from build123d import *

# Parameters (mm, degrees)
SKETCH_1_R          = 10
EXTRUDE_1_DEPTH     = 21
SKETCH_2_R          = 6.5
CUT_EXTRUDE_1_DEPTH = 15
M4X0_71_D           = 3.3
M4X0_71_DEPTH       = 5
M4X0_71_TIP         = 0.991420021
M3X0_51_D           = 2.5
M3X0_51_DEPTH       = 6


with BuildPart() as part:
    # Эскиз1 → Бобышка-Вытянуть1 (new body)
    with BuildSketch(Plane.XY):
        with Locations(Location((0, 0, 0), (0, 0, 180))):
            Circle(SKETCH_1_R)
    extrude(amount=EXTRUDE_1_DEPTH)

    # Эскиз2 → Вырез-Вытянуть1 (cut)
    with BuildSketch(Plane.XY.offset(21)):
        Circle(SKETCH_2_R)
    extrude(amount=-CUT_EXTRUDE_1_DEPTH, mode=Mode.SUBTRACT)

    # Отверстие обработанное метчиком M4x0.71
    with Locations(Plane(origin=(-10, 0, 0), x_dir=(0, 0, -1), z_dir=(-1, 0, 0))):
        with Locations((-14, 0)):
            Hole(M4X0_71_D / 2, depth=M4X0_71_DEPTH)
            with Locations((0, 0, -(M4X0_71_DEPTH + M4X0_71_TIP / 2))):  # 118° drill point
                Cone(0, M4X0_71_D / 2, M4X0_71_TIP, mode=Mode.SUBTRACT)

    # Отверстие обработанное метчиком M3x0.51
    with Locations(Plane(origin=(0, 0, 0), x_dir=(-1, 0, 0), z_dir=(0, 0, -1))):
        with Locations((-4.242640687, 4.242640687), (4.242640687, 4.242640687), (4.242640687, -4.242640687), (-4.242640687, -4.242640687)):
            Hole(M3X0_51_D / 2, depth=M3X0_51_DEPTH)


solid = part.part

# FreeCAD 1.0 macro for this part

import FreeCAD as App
import Part
import Sketcher

doc = App.newDocument("Part")
body = doc.addObject("PartDesign::Body", "Body")

# Sketch on XY plane
sketch1 = body.newObject("Sketcher::SketchObject", "Sketch")
sketch1.AttachmentSupport = (doc.getObject("XY_Plane"), [""])
sketch1.MapMode = "FlatFace"
sketch1.addGeometry(Part.Circle(App.Vector(0, 0, 0), App.Vector(0, 0, 1), 10), False)
sketch1.addConstraint(Sketcher.Constraint("Coincident", 0, 3, -1, 1))
sketch1.addConstraint(Sketcher.Constraint("Diameter", 0, 20.0))
pad1 = body.newObject("PartDesign::Pad", "Pad")
pad1.Profile = sketch1
pad1.Length = 21

# Sketch on XY plane
sketch2 = body.newObject("Sketcher::SketchObject", "Sketch001")
sketch2.AttachmentSupport = (doc.getObject("XY_Plane"), [""])
sketch2.MapMode = "FlatFace"
sketch2.AttachmentOffset = App.Placement(App.Vector(0, 0, 21), App.Rotation())
sketch2.addGeometry(Part.Circle(App.Vector(0, 0, 0), App.Vector(0, 0, 1), 6.5), False)
sketch2.addConstraint(Sketcher.Constraint("Coincident", 0, 3, -1, 1))
sketch2.addConstraint(Sketcher.Constraint("Diameter", 0, 13.0))
pocket1 = body.newObject("PartDesign::Pocket", "Pocket")
pocket1.Profile = sketch2
pocket1.Length = 15

# Sketch on YZ plane
sketch3 = body.newObject("Sketcher::SketchObject", "Sketch002")
sketch3.AttachmentSupport = (doc.getObject("YZ_Plane"), [""])
sketch3.MapMode = "FlatFace"
sketch3.AttachmentOffset = App.Placement(App.Vector(0, 0, -10), App.Rotation())
sketch3.addGeometry(Part.Circle(App.Vector(0, 14, 0), App.Vector(0, 0, 1), 1.65), False)
sketch3.addConstraint(Sketcher.Constraint("PointOnObject", 0, 3, -2))
sketch3.addConstraint(Sketcher.Constraint("Diameter", 0, 3.3))
sketch3.addConstraint(Sketcher.Constraint("DistanceY", -1, 1, 0, 3, 14.0))
doc.recompute()
hole = body.newObject("PartDesign::Hole", "Hole")
hole.Profile = sketch3
hole.ThreadType = "None"
hole.Diameter = 3.3
hole.DepthType = "Dimension"
hole.Depth = 5
hole.DrillPoint = "Angled"
hole.DrillPointAngle = 118
hole.Reversed = True

# Sketch on XY plane
sketch4 = body.newObject("Sketcher::SketchObject", "Sketch003")
sketch4.AttachmentSupport = (doc.getObject("XY_Plane"), [""])
sketch4.MapMode = "FlatFace"
sketch4.addGeometry(Part.Circle(App.Vector(4.242641, 4.242641, 0), App.Vector(0, 0, 1), 1.25), False)
sketch4.addGeometry(Part.Circle(App.Vector(-4.242641, 4.242641, 0), App.Vector(0, 0, 1), 1.25), False)
sketch4.addGeometry(Part.Circle(App.Vector(-4.242641, -4.242641, 0), App.Vector(0, 0, 1), 1.25), False)
sketch4.addGeometry(Part.Circle(App.Vector(4.242641, -4.242641, 0), App.Vector(0, 0, 1), 1.25), False)
sketch4.addConstraint(Sketcher.Constraint("Equal", 0, 1))
sketch4.addConstraint(Sketcher.Constraint("Equal", 1, 2))
sketch4.addConstraint(Sketcher.Constraint("Equal", 2, 3))
sketch4.addConstraint(Sketcher.Constraint("Symmetric", 0, 3, 2, 3, -1, 1))
sketch4.addConstraint(Sketcher.Constraint("Symmetric", 1, 3, 3, 3, -1, 1))
sketch4.addConstraint(Sketcher.Constraint("Symmetric", 0, 3, 1, 3, -2))
sketch4.addConstraint(Sketcher.Constraint("Diameter", 0, 2.5))
sketch4.addConstraint(Sketcher.Constraint("DistanceX", -1, 1, 0, 3, 4.242641))
sketch4.addConstraint(Sketcher.Constraint("DistanceY", -1, 1, 0, 3, 4.242641))
doc.recompute()
hole2 = body.newObject("PartDesign::Hole", "Hole001")
hole2.Profile = sketch4
hole2.ThreadType = "None"
hole2.Diameter = 2.5
hole2.DepthType = "Dimension"
hole2.Depth = 6
hole2.DrillPoint = "Flat"
hole2.Reversed = True

doc.recompute()
